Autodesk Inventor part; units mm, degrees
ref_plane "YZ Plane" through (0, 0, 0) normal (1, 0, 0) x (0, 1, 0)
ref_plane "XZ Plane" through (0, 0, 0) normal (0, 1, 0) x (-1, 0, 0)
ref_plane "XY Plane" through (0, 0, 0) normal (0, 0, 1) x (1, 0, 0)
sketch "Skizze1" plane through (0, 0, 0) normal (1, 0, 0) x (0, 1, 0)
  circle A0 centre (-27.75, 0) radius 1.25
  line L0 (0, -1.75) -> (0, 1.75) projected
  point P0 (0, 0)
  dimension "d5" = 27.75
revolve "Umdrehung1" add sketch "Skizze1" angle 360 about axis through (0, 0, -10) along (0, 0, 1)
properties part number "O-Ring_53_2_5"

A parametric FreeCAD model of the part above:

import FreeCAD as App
import Part
import Sketcher
from FreeCAD import Vector

doc = App.newDocument("Part")
body = doc.addObject("PartDesign::Body", "Body")

# Sketch on YZ plane
sketch1 = doc.addObject("Sketcher::SketchObject", "Sketch")
body.addObject(sketch1)
sketch1.AttachmentSupport = (doc.YZ_Plane, [""])
sketch1.MapMode = "FlatFace"
sketch1.addGeometry(Part.Circle(Vector(-27.8, 0, 0), Vector(0, 0, 1), 1.2), False)
sketch1.addConstraint(Sketcher.Constraint("PointOnObject", 0, 3, -1))
sketch1.addConstraint(Sketcher.Constraint("Diameter", 0, 2.5))
sketch1.addConstraint(Sketcher.Constraint("DistanceX", 0, 3, -1, 1, 27.75))
revolution = doc.addObject("PartDesign::Revolution", "Revolution")
body.addObject(revolution)
revolution.Profile = sketch1
revolution.ReferenceAxis = (sketch1, ["V_Axis"])
revolution.Angle = 360

doc.recompute()
